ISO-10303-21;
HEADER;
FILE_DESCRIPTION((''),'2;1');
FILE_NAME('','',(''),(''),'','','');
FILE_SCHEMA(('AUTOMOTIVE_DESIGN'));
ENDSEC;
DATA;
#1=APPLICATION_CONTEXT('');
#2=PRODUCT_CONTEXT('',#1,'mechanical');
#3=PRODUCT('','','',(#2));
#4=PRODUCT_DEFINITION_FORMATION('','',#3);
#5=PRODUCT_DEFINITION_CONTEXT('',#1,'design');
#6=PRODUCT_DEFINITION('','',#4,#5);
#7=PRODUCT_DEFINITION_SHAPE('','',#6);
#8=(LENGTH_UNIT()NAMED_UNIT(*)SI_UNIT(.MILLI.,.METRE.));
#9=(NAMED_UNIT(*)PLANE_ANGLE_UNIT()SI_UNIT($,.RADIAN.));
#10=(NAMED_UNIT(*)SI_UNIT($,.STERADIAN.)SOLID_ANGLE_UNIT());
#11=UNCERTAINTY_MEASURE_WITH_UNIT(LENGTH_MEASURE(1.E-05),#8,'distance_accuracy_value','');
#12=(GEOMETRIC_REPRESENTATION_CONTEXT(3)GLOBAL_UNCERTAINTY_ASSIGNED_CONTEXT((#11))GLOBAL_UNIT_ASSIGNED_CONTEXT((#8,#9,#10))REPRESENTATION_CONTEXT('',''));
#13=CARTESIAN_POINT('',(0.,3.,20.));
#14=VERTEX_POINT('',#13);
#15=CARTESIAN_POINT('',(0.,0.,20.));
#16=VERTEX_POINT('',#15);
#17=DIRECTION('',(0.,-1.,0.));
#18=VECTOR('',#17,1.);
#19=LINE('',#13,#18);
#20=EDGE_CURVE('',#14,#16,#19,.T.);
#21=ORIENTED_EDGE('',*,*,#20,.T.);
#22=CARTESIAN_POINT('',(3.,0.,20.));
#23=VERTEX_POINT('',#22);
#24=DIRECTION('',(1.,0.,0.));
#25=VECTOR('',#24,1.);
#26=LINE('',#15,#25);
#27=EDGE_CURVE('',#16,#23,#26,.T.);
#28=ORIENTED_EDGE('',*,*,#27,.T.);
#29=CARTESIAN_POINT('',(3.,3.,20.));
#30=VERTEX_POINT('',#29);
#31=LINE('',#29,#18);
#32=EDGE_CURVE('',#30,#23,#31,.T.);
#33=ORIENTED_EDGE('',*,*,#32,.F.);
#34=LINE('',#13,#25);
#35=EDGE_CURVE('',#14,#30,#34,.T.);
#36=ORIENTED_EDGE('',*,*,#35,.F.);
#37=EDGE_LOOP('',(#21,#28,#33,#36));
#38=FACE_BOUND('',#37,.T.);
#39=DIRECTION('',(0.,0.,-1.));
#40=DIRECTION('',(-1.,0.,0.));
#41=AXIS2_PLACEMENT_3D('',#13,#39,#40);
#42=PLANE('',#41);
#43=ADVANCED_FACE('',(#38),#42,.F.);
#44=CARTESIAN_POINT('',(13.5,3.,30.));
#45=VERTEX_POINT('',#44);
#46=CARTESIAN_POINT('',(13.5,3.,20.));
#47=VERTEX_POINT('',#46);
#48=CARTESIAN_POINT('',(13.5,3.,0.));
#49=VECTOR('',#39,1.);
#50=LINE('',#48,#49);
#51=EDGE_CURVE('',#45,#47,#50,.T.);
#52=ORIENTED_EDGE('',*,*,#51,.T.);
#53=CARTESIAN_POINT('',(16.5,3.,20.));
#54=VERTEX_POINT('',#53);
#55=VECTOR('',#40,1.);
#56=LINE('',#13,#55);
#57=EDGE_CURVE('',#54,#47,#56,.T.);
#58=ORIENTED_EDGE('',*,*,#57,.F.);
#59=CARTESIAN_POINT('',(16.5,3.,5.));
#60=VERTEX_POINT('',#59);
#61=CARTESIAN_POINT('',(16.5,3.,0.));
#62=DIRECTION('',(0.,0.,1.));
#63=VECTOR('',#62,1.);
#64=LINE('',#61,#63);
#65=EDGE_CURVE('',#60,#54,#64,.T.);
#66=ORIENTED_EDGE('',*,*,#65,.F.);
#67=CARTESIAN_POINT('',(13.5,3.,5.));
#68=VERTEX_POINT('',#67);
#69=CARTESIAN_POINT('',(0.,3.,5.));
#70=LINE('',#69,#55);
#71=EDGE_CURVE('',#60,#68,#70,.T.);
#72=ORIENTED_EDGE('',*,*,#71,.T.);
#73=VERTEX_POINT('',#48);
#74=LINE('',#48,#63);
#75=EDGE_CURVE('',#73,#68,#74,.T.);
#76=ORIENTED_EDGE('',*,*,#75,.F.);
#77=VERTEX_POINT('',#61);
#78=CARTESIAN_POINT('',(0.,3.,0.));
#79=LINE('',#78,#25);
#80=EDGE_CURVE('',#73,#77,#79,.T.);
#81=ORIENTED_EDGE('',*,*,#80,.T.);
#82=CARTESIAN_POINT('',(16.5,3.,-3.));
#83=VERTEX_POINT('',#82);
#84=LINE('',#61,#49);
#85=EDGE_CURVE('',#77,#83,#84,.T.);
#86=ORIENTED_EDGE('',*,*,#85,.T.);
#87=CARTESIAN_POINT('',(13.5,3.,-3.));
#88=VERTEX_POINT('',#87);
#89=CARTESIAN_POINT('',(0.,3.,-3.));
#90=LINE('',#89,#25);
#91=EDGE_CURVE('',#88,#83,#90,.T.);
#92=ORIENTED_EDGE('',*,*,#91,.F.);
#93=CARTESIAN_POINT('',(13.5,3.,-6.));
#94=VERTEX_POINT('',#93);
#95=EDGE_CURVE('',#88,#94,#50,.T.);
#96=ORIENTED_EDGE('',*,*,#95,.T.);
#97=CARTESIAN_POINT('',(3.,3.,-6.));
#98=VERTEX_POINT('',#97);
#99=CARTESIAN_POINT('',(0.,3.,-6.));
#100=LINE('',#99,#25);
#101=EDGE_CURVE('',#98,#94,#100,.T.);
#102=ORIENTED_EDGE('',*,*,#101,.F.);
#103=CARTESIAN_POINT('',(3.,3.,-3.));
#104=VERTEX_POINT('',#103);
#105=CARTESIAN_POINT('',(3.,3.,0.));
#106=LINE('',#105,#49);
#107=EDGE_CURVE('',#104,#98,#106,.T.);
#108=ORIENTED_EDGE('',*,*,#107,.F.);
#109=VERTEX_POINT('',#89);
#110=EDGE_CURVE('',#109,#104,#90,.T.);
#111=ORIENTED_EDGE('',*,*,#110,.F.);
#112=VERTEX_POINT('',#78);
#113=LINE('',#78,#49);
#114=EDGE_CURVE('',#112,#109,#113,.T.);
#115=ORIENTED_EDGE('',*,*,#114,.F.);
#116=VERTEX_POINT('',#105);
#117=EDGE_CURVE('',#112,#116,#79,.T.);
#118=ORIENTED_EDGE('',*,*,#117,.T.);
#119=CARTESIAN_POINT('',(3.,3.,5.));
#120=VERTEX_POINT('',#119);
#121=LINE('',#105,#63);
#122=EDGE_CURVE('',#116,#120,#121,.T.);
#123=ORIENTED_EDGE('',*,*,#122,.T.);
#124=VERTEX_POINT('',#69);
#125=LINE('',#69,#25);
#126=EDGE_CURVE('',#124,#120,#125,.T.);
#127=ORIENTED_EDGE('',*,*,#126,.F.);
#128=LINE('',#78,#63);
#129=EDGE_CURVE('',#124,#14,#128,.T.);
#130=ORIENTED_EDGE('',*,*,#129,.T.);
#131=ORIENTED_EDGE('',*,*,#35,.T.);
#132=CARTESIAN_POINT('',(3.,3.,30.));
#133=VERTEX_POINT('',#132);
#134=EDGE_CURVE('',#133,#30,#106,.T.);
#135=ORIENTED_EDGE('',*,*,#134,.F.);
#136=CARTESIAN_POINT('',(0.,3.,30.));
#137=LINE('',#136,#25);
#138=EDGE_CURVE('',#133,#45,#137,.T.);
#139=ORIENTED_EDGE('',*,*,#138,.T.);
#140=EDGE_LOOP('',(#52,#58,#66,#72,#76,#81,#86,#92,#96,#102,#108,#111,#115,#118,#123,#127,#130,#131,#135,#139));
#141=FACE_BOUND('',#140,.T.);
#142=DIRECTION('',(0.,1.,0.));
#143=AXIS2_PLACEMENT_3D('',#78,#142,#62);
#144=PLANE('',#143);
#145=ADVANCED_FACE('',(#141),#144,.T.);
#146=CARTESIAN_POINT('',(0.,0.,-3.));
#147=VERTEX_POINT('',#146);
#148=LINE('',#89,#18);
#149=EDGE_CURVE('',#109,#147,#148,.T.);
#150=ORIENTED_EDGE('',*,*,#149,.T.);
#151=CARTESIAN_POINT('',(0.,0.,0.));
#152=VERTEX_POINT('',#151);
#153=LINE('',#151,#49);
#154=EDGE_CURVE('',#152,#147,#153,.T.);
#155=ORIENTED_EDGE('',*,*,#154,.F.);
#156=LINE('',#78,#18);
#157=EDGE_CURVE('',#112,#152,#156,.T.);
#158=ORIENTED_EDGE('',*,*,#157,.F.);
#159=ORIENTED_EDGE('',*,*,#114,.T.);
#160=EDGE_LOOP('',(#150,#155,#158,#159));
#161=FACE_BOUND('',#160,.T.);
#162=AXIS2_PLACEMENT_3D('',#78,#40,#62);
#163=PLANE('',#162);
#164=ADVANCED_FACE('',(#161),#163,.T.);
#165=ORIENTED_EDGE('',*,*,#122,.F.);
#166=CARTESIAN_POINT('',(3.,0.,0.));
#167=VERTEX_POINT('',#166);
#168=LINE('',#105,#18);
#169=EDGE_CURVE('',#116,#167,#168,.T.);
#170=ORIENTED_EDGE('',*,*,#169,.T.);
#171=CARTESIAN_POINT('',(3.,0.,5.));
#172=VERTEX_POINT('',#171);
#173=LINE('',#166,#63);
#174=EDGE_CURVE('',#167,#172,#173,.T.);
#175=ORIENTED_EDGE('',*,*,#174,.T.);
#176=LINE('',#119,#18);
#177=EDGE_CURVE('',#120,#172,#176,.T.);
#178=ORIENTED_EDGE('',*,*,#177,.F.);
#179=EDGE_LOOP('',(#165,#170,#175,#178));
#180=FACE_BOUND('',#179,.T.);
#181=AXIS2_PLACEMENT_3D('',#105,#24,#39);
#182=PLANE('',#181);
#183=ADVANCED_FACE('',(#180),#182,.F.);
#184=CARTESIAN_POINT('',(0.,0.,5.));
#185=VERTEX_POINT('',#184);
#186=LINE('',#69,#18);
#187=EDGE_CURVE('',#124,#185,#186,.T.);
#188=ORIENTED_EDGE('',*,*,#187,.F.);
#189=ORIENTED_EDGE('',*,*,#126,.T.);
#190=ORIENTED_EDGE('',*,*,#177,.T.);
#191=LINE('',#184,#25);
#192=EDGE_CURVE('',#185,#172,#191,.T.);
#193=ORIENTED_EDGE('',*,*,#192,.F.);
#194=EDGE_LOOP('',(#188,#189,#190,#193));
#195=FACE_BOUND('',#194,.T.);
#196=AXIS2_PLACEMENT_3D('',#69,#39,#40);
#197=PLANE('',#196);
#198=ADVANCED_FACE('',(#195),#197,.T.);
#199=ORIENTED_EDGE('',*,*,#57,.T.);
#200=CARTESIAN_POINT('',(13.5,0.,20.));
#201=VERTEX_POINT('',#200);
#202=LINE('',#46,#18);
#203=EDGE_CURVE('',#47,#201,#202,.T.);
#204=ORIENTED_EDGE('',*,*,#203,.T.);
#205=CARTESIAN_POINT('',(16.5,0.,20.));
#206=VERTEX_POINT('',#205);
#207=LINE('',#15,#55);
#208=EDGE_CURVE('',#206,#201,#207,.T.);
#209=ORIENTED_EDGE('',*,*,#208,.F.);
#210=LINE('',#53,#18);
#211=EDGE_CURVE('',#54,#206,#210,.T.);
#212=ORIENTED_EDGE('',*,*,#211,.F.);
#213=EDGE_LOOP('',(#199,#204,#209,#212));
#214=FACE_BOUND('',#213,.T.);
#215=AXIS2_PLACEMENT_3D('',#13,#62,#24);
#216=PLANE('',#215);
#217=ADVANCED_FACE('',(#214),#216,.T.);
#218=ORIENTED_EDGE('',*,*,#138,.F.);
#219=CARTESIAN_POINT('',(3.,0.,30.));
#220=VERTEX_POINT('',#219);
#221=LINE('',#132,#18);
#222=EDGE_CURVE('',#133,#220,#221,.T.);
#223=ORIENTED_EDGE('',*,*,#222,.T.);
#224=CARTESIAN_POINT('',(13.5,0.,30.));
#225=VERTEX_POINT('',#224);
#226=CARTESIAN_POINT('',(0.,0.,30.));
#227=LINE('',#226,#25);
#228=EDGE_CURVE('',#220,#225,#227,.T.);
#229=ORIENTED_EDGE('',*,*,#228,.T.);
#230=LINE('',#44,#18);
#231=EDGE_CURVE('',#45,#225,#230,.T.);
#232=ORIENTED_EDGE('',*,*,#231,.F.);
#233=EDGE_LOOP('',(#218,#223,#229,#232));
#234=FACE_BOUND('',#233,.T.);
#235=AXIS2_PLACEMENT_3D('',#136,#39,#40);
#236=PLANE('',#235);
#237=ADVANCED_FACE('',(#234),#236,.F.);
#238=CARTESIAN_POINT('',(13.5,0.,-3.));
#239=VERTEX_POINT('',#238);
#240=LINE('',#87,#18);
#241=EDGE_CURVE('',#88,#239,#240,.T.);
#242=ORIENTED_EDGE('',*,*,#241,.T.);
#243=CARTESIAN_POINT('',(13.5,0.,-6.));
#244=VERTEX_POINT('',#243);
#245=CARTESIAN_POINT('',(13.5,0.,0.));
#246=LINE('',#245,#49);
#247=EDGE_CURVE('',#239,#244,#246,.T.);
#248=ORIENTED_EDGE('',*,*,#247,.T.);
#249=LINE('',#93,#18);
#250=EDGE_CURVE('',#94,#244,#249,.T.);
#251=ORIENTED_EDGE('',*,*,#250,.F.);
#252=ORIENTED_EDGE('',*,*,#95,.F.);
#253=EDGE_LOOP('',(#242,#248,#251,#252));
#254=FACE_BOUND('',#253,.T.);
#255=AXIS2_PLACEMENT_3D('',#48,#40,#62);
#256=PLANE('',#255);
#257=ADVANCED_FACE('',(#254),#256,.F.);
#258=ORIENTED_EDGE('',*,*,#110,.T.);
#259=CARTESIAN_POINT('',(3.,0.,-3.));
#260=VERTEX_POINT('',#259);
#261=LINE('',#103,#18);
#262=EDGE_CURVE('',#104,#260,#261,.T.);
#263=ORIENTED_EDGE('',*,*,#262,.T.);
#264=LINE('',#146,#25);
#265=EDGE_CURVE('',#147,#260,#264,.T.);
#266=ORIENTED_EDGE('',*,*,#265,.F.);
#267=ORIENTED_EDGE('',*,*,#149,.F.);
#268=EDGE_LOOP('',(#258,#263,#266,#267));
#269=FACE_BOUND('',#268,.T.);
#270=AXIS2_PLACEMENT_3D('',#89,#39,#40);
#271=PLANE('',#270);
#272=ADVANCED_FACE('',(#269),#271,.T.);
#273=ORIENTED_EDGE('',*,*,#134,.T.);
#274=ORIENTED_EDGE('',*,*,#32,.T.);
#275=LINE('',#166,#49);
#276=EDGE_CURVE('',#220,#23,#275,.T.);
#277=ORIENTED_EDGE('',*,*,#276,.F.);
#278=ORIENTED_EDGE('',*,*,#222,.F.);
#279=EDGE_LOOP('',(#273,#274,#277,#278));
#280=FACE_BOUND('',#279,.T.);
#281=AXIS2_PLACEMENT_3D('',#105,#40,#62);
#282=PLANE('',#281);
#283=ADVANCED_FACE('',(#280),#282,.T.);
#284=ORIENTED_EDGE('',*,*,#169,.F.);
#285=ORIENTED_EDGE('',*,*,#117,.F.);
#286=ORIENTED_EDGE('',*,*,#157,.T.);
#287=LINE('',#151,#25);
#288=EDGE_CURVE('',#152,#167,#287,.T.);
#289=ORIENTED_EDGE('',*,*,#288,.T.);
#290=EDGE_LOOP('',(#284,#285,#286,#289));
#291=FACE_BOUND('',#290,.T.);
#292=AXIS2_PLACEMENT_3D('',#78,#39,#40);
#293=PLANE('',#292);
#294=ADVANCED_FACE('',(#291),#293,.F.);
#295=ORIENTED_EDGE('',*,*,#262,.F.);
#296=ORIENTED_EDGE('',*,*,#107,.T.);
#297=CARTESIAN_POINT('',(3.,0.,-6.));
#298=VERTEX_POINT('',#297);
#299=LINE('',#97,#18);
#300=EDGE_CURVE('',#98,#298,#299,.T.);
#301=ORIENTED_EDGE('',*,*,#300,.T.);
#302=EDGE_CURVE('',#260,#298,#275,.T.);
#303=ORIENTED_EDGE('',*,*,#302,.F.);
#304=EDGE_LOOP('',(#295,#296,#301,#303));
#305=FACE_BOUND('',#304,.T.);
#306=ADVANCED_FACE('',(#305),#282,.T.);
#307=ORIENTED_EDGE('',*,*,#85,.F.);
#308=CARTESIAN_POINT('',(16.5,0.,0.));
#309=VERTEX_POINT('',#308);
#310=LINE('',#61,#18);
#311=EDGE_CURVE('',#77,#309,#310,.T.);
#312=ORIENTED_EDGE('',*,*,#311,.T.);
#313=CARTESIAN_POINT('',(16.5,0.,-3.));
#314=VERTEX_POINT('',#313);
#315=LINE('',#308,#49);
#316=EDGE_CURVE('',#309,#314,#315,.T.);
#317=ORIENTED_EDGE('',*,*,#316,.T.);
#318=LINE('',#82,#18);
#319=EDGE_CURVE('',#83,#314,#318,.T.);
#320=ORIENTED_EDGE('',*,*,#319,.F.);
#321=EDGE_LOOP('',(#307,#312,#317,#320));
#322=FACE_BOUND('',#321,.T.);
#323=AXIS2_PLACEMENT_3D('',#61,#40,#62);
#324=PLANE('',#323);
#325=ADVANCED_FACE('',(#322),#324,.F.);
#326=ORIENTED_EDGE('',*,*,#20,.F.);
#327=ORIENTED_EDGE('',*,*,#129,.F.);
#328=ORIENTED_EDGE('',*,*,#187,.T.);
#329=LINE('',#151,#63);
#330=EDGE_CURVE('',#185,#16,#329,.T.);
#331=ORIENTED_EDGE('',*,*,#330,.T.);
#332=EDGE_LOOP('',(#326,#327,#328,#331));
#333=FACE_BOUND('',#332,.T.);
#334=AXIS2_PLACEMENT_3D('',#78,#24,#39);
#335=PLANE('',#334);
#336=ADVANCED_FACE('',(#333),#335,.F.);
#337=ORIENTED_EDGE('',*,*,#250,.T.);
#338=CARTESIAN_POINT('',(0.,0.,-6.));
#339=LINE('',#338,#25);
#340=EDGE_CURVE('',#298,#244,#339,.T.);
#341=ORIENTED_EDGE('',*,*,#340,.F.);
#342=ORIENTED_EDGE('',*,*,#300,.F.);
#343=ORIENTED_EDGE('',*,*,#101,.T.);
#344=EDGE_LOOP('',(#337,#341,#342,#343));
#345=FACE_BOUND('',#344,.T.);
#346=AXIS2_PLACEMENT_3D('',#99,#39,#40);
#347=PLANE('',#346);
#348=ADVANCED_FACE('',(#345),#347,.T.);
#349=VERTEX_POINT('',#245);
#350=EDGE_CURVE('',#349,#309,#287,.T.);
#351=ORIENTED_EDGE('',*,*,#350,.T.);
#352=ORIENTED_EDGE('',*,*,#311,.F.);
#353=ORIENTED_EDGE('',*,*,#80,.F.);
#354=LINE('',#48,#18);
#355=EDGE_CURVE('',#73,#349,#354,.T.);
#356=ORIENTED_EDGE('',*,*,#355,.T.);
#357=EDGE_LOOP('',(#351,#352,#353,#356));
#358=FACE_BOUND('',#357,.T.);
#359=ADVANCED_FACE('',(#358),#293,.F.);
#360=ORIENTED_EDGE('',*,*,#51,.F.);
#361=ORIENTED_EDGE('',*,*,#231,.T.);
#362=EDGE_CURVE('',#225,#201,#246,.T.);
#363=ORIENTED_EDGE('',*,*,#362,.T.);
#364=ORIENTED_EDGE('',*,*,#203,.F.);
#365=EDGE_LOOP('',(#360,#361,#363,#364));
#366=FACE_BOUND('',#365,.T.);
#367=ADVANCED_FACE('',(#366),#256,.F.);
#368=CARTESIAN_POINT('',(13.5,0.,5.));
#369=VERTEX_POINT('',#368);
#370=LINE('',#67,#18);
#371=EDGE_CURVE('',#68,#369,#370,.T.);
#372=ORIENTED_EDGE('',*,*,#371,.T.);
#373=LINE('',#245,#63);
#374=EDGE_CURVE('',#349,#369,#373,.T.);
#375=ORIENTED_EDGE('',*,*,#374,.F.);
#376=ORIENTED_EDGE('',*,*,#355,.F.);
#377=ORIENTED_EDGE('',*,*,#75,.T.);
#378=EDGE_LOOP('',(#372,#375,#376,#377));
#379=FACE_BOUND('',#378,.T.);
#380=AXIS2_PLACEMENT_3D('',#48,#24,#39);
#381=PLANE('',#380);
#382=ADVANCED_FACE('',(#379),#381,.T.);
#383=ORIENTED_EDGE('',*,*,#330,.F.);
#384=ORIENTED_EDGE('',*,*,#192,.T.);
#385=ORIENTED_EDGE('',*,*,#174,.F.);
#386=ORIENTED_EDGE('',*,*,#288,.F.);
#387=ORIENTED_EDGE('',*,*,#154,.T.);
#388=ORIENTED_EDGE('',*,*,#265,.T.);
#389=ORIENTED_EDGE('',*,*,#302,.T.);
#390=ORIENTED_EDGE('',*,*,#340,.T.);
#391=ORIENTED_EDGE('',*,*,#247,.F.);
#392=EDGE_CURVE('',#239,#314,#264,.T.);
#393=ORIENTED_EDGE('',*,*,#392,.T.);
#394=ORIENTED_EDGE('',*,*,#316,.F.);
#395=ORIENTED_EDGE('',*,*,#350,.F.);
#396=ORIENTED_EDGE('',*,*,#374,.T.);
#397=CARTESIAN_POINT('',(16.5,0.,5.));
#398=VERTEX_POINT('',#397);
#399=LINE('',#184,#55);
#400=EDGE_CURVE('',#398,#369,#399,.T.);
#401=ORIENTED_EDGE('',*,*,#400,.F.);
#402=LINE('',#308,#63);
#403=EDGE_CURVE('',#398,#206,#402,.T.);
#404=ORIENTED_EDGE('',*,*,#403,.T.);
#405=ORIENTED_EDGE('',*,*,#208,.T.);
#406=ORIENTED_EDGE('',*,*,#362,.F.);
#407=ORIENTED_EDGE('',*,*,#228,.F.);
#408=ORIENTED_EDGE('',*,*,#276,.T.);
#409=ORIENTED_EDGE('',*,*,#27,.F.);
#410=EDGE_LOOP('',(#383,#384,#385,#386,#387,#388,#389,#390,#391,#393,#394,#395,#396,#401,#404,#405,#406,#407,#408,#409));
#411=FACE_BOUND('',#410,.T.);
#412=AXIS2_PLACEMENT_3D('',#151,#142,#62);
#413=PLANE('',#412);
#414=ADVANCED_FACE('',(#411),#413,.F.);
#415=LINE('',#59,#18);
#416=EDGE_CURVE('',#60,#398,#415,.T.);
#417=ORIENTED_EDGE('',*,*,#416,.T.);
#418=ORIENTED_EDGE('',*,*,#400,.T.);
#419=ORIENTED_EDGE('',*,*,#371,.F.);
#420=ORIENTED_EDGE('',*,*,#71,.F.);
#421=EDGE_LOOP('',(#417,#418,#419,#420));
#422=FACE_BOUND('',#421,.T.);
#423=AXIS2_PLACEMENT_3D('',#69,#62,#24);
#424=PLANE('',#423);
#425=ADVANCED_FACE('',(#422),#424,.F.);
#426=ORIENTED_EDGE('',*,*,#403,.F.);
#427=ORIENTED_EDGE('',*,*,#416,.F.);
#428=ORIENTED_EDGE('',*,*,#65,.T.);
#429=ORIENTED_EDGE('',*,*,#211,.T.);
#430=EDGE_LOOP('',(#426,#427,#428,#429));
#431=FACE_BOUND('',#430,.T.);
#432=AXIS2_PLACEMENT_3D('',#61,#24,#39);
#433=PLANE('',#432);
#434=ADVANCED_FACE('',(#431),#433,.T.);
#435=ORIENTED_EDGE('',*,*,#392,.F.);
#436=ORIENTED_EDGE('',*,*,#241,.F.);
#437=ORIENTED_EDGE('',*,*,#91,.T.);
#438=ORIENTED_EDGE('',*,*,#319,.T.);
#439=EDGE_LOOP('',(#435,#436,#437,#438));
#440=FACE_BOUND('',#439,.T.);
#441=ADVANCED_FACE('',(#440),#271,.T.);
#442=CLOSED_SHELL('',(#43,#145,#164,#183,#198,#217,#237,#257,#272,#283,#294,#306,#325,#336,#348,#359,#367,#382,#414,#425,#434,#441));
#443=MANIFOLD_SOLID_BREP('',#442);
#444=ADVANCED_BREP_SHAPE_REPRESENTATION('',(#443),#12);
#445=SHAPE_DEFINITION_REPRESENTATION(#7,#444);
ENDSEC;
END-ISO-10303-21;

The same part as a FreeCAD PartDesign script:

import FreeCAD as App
import Part
import Sketcher

V = App.Vector
Q = App.Units.Quantity


def add_polygon(sketch, points):
    """Adds a closed chain of lines whose ends are joined by coincident constraints."""
    first, n = sketch.GeometryCount, len(points)
    for a, b in zip(points, points[1:] + points[:1]):
        sketch.addGeometry(Part.LineSegment(App.Vector(*a, 0), App.Vector(*b, 0)), False)
    for i in range(n):
        sketch.addConstraint(Sketcher.Constraint("Coincident", first + i, 2, first + (i + 1) % n, 1))

doc = App.newDocument("Part")
body = doc.addObject("PartDesign::Body", "Body")

# Sketch on XZ plane
sketch1 = body.newObject("Sketcher::SketchObject", "Sketch")
sketch1.AttachmentSupport = (doc.getObject("XZ_Plane"), [""])
sketch1.MapMode = "FlatFace"
add_polygon(sketch1, [(3, 0), (3, 5), (0, 5), (0, 20), (3, 20), (3, 30), (13.5, 30), (13.5, 20), (16.5, 20), (16.5, 5), (13.5, 5), (13.5, 0), (16.5, 0), (16.5, -3), (13.5, -3), (13.5, -6), (3, -6), (3, -3), (0, -3), (0, 0)])  # lines 0-19
sketch1.addConstraint([
    Sketcher.Constraint("Vertical", 0),
    Sketcher.Constraint("Horizontal", 1),
    Sketcher.Constraint("Vertical", 2),
    Sketcher.Constraint("Horizontal", 3),
    Sketcher.Constraint("Vertical", 4),
    Sketcher.Constraint("Horizontal", 5),
    Sketcher.Constraint("Vertical", 6),
    Sketcher.Constraint("Horizontal", 7),
    Sketcher.Constraint("Vertical", 8),
    Sketcher.Constraint("Horizontal", 9),
    Sketcher.Constraint("Vertical", 10),
    Sketcher.Constraint("Horizontal", 11),
    Sketcher.Constraint("Vertical", 12),
    Sketcher.Constraint("Horizontal", 13),
    Sketcher.Constraint("Vertical", 14),
    Sketcher.Constraint("Horizontal", 15),
    Sketcher.Constraint("Vertical", 16),
    Sketcher.Constraint("Horizontal", 17),
    Sketcher.Constraint("Vertical", 18),
    Sketcher.Constraint("Horizontal", 19),
    Sketcher.Constraint("Coincident", 18, 2, -1, 1),
    Sketcher.Constraint("PointOnObject", 1, 2, -2),
    Sketcher.Constraint("PointOnObject", 10, 2, -1),
    Sketcher.Constraint("Horizontal", 3, 2, 6, 2),
    Sketcher.Constraint("Horizontal", 1, 2, 8, 2),
    Sketcher.Constraint("Horizontal", 13, 2, 16, 2),
    Sketcher.Constraint("Vertical", 0, 2, 3, 2),
    Sketcher.Constraint("Vertical", 6, 2, 9, 2),
    Sketcher.Constraint("Vertical", 8, 2, 11, 2),
    Sketcher.Constraint("Vertical", 10, 2, 13, 2),
    Sketcher.Constraint("Vertical", 4, 2, 15, 2),
    Sketcher.Constraint("Equal", 3, 7),
    Sketcher.Constraint("Equal", 19, 12),
    Sketcher.Constraint("Equal", 12, 14),
    Sketcher.Constraint("DistanceX", 1, 2, 1, 1, Q("3 mm")),
    Sketcher.Constraint("DistanceY", 0, 1, 0, 2, Q("5 mm")),
    Sketcher.Constraint("DistanceY", 2, 1, 2, 2, Q("15 mm")),
    Sketcher.Constraint("DistanceY", 4, 1, 4, 2, Q("10 mm")),
    Sketcher.Constraint("DistanceX", 5, 1, 5, 2, Q("10.5 mm")),
])
pad1 = body.newObject("PartDesign::Pad", "Pad")
pad1.Profile = sketch1
pad1.Length = 3
pad1.Reversed = True

doc.recompute()
